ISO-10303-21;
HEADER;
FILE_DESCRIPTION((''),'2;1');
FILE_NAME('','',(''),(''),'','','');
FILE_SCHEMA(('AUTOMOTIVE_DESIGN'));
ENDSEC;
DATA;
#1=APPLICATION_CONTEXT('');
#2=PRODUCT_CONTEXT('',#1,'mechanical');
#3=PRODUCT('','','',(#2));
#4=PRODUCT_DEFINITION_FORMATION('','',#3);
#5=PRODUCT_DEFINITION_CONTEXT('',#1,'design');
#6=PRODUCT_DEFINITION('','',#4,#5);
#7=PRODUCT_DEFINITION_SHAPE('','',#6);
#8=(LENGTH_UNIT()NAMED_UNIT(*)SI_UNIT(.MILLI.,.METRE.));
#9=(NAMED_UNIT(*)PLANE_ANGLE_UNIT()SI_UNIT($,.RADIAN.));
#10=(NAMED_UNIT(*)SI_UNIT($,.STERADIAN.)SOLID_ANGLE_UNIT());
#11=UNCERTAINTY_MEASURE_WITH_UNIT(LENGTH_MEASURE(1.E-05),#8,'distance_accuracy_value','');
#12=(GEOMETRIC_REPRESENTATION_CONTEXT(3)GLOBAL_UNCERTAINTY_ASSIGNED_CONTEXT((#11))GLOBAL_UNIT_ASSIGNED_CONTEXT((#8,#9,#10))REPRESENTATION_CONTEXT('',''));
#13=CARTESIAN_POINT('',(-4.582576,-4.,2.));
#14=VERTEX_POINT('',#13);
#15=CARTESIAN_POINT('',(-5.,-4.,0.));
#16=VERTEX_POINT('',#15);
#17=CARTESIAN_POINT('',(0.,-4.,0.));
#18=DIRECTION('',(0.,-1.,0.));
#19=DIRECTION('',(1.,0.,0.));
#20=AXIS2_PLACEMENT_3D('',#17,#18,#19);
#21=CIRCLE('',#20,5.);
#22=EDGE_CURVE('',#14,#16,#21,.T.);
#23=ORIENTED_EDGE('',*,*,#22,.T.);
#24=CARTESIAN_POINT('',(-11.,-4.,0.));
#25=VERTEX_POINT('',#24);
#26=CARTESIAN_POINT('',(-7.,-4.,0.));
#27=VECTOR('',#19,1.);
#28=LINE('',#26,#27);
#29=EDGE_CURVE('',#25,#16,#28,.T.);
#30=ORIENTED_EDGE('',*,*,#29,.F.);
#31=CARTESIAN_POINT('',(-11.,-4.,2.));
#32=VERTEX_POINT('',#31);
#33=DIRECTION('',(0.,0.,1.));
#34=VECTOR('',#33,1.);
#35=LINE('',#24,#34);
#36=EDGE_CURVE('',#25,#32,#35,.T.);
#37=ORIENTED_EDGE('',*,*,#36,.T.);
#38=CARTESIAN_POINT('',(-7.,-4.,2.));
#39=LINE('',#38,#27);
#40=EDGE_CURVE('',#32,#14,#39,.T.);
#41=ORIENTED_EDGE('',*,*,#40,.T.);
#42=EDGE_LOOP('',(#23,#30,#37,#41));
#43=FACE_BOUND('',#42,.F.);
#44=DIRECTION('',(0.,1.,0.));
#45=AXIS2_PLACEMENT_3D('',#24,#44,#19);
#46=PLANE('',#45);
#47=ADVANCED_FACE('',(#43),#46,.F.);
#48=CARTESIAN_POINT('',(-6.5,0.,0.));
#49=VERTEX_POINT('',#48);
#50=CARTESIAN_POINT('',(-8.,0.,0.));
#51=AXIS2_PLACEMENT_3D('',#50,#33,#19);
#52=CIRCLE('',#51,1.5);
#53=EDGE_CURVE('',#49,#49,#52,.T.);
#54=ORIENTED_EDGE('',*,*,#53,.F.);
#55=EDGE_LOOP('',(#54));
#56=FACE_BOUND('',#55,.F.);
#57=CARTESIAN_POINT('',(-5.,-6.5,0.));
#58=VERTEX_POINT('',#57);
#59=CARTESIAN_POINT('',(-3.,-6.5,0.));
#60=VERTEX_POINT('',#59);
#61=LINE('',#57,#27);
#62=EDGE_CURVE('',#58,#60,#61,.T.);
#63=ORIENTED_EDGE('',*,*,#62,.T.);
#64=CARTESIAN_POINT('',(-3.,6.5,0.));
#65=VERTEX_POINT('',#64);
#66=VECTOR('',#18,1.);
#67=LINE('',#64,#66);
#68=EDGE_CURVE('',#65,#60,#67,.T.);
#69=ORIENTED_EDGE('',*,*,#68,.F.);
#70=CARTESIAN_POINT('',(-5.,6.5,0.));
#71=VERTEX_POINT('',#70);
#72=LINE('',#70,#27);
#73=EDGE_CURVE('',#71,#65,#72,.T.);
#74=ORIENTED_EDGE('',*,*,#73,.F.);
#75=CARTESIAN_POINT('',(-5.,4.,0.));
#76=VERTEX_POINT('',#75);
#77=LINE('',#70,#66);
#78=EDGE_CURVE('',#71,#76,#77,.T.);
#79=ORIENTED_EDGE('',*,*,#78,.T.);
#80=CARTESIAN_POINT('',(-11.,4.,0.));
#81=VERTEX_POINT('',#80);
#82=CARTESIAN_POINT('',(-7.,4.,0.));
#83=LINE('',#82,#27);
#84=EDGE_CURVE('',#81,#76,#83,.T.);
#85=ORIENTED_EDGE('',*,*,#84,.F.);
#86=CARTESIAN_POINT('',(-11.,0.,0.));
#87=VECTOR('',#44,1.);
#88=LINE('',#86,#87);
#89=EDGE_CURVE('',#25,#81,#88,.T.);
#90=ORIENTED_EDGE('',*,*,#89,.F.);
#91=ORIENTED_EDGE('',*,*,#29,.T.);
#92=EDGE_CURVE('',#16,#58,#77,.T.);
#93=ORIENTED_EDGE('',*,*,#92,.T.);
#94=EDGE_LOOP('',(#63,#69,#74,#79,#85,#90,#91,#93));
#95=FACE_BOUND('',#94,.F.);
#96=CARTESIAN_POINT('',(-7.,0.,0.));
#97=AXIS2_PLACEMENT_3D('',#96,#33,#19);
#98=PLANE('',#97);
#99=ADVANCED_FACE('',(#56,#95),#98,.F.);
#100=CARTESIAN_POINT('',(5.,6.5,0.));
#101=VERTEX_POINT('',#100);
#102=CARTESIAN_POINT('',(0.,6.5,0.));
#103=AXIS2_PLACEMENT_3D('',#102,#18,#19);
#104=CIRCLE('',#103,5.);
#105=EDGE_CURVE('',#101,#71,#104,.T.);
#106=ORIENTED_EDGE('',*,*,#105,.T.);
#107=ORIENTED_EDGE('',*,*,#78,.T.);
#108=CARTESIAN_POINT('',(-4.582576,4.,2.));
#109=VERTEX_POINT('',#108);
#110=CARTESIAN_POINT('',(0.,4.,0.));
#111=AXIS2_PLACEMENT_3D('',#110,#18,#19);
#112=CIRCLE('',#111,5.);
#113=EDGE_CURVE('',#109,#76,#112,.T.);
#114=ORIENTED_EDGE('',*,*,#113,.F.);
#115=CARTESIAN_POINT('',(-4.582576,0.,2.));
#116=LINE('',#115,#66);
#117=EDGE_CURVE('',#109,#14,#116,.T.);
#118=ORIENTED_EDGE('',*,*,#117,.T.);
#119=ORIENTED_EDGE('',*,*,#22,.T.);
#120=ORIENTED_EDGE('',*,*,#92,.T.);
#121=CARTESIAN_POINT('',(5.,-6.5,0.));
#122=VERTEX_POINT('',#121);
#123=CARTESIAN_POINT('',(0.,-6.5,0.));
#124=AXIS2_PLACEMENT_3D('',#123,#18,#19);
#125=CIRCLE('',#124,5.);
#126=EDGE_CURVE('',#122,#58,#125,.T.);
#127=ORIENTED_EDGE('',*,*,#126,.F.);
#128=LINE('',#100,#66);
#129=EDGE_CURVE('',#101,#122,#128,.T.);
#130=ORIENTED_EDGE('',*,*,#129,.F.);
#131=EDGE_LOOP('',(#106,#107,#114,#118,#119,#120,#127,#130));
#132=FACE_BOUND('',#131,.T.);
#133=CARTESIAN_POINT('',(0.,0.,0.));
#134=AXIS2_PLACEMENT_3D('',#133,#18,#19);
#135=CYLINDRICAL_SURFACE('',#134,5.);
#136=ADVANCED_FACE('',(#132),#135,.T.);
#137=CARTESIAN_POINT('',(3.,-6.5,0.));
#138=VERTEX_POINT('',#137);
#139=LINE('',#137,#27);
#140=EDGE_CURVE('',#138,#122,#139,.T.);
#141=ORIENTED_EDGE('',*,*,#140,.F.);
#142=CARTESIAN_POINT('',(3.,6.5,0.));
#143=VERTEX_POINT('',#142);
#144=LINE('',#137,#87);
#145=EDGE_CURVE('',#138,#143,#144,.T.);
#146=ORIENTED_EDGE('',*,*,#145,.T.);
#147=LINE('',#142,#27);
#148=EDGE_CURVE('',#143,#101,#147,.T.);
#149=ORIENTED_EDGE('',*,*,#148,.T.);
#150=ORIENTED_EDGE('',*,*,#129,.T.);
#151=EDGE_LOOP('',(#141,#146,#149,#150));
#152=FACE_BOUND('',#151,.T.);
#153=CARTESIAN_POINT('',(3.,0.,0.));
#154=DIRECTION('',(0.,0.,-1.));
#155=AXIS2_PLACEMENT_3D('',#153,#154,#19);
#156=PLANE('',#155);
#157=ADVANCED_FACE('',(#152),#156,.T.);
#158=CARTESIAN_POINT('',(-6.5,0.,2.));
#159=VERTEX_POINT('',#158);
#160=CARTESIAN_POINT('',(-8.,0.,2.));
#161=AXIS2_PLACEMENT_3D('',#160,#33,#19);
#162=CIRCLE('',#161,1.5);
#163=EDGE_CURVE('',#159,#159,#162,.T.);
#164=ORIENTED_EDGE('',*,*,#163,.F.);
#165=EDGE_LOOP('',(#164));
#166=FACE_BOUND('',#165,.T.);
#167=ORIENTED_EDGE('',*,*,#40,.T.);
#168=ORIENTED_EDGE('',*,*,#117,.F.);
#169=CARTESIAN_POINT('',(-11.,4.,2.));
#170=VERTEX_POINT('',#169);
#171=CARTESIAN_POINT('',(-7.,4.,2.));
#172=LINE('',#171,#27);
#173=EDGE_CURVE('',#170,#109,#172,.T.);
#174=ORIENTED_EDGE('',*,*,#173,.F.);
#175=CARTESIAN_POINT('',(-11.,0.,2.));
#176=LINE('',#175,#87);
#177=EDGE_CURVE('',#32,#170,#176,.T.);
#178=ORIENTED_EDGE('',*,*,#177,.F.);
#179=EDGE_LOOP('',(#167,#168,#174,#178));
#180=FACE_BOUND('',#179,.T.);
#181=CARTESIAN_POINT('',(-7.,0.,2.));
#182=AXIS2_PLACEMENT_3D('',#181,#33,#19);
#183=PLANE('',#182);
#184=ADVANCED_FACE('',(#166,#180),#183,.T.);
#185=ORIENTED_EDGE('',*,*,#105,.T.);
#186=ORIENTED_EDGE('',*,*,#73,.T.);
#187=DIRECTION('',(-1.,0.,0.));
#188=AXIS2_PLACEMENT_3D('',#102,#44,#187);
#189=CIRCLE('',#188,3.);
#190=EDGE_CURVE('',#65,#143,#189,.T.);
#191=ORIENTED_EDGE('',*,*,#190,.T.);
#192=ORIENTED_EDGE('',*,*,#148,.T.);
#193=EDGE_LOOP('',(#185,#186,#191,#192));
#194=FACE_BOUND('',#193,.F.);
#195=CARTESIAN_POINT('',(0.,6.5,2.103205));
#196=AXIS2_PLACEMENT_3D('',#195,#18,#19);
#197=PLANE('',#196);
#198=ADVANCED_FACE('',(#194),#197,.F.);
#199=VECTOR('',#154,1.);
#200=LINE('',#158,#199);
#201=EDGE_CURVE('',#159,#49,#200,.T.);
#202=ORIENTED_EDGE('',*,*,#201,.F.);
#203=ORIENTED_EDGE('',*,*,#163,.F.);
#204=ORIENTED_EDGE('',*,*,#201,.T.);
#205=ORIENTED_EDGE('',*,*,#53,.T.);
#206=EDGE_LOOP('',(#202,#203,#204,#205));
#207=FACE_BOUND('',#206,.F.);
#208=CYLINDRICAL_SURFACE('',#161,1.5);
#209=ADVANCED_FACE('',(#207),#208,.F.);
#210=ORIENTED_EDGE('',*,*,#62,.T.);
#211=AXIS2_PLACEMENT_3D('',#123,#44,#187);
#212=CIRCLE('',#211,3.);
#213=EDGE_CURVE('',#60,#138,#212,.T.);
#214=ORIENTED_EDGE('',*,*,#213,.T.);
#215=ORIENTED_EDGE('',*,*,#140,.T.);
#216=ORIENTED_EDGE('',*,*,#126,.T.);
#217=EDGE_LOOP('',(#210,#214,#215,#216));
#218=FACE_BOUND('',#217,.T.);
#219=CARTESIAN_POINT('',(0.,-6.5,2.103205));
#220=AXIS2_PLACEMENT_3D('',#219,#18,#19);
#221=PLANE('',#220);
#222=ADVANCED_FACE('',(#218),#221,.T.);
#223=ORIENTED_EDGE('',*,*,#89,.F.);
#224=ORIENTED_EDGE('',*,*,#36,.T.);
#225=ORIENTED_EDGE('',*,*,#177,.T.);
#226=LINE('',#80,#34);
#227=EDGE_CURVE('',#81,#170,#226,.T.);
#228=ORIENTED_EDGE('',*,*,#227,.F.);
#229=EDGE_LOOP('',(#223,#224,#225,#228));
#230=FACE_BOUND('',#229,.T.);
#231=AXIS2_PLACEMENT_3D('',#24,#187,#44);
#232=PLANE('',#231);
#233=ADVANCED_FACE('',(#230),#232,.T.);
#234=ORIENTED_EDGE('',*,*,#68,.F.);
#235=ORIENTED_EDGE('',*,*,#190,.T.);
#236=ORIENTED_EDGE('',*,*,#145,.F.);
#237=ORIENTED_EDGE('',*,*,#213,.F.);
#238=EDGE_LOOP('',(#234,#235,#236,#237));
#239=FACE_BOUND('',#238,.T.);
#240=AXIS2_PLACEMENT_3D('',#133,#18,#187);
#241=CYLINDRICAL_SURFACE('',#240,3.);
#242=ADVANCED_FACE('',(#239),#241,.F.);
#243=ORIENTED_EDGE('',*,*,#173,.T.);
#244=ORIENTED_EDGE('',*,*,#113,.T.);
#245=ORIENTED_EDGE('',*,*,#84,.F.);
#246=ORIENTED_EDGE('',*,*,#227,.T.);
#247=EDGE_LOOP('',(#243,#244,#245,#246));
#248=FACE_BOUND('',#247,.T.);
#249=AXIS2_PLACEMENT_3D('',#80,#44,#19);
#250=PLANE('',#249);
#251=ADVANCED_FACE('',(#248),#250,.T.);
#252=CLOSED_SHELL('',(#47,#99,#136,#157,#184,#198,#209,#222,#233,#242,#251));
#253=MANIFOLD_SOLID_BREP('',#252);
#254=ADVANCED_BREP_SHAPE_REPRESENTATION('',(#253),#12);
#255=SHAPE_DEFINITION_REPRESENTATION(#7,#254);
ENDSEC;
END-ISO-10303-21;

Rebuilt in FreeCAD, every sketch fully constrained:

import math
import FreeCAD as App
import Part
import Sketcher
from FreeCAD import Vector
Q = App.Units.Quantity

doc = App.newDocument("Part")
body = doc.addObject("PartDesign::Body", "Body")

sketch1 = body.newObject("Sketcher::SketchObject", "Sketch")
sketch1.AttachmentSupport = (doc.getObject("XZ_Plane"), [""])
sketch1.MapMode = "FlatFace"
sketch1.addGeometry(Part.LineSegment(Vector(3, 0, 0), Vector(5, 0, 0)), False)
sketch1.addGeometry(Part.ArcOfCircle(Part.Circle(Vector(0, 0, 0), Vector(0, 0, 1), 5), math.radians(0), math.radians(180)), False)
sketch1.addGeometry(Part.LineSegment(Vector(-5, 0, 0), Vector(-3, 0, 0)), False)
sketch1.addGeometry(Part.ArcOfCircle(Part.Circle(Vector(0, 0, 0), Vector(0, 0, 1), 3), math.radians(0), math.radians(180)), False)
sketch1.addConstraint(Sketcher.Constraint("Coincident", 0, 2, 1, 1))
sketch1.addConstraint(Sketcher.Constraint("Coincident", 1, 2, 2, 1))
sketch1.addConstraint(Sketcher.Constraint("Coincident", 2, 2, 3, 2))
sketch1.addConstraint(Sketcher.Constraint("Coincident", 3, 1, 0, 1))
sketch1.addConstraint(Sketcher.Constraint("Horizontal", 0))
sketch1.addConstraint(Sketcher.Constraint("Horizontal", 2))
sketch1.addConstraint(Sketcher.Constraint("Coincident", 1, 3, -1, 1))
sketch1.addConstraint(Sketcher.Constraint("Coincident", 3, 3, -1, 1))
sketch1.addConstraint(Sketcher.Constraint("PointOnObject", 0, 2, -1))
sketch1.addConstraint(Sketcher.Constraint("PointOnObject", 1, 2, -1))
sketch1.addConstraint(Sketcher.Constraint("Radius", 1, Q("5 mm")))
sketch1.addConstraint(Sketcher.Constraint("Radius", 3, Q("3 mm")))
pad1 = body.newObject("PartDesign::Pad", "Pad")
pad1.Profile = sketch1
pad1.Length = 13
pad1.Midplane = True

sketch2 = body.newObject("Sketcher::SketchObject", "Sketch001")
sketch2.AttachmentSupport = (doc.getObject("XY_Plane"), [""])
sketch2.MapMode = "FlatFace"
sketch2.addGeometry(Part.LineSegment(Vector(-11, 4, 0), Vector(-11, -4, 0)), False)
sketch2.addGeometry(Part.LineSegment(Vector(-11, -4, 0), Vector(-3, -4, 0)), False)
sketch2.addGeometry(Part.LineSegment(Vector(-3, -4, 0), Vector(-3, 4, 0)), False)
sketch2.addGeometry(Part.LineSegment(Vector(-3, 4, 0), Vector(-11, 4, 0)), False)
sketch2.addConstraint(Sketcher.Constraint("Coincident", 0, 2, 1, 1))
sketch2.addConstraint(Sketcher.Constraint("Coincident", 1, 2, 2, 1))
sketch2.addConstraint(Sketcher.Constraint("Coincident", 2, 2, 3, 1))
sketch2.addConstraint(Sketcher.Constraint("Coincident", 3, 2, 0, 1))
sketch2.addConstraint(Sketcher.Constraint("Vertical", 0))
sketch2.addConstraint(Sketcher.Constraint("Horizontal", 1))
sketch2.addConstraint(Sketcher.Constraint("Vertical", 2))
sketch2.addConstraint(Sketcher.Constraint("Horizontal", 3))
sketch2.addConstraint(Sketcher.Constraint("Equal", 3, 0))
sketch2.addConstraint(Sketcher.Constraint("DistanceX", 1, 1, 1, 2, Q("8 mm")))
sketch2.addConstraint(Sketcher.Constraint("DistanceX", 0, 2, -1, 1, Q("11 mm")))
sketch2.addConstraint(Sketcher.Constraint("DistanceY", 0, 2, -1, 1, Q("4 mm")))
pad2 = body.newObject("PartDesign::Pad", "Pad001")
pad2.Profile = sketch2
pad2.Length = 2

sketch3 = body.newObject("Sketcher::SketchObject", "Sketch002")
sketch3.AttachmentSupport = (doc.getObject("XY_Plane"), [""])
sketch3.MapMode = "FlatFace"
sketch3.AttachmentOffset = App.Placement(Vector(0, 0, 2), App.Rotation())
sketch3.addGeometry(Part.Circle(Vector(-8, 0, 0), Vector(0, 0, 1), 1.5), False)
sketch3.addConstraint(Sketcher.Constraint("PointOnObject", 0, 3, -1))
sketch3.addConstraint(Sketcher.Constraint("Diameter", 0, Q("3 mm")))
sketch3.addConstraint(Sketcher.Constraint("DistanceX", 0, 3, -1, 1, Q("8 mm")))
pocket1 = body.newObject("PartDesign::Pocket", "Pocket")
pocket1.Profile = sketch3
pocket1.Length = 25

doc.recompute()
